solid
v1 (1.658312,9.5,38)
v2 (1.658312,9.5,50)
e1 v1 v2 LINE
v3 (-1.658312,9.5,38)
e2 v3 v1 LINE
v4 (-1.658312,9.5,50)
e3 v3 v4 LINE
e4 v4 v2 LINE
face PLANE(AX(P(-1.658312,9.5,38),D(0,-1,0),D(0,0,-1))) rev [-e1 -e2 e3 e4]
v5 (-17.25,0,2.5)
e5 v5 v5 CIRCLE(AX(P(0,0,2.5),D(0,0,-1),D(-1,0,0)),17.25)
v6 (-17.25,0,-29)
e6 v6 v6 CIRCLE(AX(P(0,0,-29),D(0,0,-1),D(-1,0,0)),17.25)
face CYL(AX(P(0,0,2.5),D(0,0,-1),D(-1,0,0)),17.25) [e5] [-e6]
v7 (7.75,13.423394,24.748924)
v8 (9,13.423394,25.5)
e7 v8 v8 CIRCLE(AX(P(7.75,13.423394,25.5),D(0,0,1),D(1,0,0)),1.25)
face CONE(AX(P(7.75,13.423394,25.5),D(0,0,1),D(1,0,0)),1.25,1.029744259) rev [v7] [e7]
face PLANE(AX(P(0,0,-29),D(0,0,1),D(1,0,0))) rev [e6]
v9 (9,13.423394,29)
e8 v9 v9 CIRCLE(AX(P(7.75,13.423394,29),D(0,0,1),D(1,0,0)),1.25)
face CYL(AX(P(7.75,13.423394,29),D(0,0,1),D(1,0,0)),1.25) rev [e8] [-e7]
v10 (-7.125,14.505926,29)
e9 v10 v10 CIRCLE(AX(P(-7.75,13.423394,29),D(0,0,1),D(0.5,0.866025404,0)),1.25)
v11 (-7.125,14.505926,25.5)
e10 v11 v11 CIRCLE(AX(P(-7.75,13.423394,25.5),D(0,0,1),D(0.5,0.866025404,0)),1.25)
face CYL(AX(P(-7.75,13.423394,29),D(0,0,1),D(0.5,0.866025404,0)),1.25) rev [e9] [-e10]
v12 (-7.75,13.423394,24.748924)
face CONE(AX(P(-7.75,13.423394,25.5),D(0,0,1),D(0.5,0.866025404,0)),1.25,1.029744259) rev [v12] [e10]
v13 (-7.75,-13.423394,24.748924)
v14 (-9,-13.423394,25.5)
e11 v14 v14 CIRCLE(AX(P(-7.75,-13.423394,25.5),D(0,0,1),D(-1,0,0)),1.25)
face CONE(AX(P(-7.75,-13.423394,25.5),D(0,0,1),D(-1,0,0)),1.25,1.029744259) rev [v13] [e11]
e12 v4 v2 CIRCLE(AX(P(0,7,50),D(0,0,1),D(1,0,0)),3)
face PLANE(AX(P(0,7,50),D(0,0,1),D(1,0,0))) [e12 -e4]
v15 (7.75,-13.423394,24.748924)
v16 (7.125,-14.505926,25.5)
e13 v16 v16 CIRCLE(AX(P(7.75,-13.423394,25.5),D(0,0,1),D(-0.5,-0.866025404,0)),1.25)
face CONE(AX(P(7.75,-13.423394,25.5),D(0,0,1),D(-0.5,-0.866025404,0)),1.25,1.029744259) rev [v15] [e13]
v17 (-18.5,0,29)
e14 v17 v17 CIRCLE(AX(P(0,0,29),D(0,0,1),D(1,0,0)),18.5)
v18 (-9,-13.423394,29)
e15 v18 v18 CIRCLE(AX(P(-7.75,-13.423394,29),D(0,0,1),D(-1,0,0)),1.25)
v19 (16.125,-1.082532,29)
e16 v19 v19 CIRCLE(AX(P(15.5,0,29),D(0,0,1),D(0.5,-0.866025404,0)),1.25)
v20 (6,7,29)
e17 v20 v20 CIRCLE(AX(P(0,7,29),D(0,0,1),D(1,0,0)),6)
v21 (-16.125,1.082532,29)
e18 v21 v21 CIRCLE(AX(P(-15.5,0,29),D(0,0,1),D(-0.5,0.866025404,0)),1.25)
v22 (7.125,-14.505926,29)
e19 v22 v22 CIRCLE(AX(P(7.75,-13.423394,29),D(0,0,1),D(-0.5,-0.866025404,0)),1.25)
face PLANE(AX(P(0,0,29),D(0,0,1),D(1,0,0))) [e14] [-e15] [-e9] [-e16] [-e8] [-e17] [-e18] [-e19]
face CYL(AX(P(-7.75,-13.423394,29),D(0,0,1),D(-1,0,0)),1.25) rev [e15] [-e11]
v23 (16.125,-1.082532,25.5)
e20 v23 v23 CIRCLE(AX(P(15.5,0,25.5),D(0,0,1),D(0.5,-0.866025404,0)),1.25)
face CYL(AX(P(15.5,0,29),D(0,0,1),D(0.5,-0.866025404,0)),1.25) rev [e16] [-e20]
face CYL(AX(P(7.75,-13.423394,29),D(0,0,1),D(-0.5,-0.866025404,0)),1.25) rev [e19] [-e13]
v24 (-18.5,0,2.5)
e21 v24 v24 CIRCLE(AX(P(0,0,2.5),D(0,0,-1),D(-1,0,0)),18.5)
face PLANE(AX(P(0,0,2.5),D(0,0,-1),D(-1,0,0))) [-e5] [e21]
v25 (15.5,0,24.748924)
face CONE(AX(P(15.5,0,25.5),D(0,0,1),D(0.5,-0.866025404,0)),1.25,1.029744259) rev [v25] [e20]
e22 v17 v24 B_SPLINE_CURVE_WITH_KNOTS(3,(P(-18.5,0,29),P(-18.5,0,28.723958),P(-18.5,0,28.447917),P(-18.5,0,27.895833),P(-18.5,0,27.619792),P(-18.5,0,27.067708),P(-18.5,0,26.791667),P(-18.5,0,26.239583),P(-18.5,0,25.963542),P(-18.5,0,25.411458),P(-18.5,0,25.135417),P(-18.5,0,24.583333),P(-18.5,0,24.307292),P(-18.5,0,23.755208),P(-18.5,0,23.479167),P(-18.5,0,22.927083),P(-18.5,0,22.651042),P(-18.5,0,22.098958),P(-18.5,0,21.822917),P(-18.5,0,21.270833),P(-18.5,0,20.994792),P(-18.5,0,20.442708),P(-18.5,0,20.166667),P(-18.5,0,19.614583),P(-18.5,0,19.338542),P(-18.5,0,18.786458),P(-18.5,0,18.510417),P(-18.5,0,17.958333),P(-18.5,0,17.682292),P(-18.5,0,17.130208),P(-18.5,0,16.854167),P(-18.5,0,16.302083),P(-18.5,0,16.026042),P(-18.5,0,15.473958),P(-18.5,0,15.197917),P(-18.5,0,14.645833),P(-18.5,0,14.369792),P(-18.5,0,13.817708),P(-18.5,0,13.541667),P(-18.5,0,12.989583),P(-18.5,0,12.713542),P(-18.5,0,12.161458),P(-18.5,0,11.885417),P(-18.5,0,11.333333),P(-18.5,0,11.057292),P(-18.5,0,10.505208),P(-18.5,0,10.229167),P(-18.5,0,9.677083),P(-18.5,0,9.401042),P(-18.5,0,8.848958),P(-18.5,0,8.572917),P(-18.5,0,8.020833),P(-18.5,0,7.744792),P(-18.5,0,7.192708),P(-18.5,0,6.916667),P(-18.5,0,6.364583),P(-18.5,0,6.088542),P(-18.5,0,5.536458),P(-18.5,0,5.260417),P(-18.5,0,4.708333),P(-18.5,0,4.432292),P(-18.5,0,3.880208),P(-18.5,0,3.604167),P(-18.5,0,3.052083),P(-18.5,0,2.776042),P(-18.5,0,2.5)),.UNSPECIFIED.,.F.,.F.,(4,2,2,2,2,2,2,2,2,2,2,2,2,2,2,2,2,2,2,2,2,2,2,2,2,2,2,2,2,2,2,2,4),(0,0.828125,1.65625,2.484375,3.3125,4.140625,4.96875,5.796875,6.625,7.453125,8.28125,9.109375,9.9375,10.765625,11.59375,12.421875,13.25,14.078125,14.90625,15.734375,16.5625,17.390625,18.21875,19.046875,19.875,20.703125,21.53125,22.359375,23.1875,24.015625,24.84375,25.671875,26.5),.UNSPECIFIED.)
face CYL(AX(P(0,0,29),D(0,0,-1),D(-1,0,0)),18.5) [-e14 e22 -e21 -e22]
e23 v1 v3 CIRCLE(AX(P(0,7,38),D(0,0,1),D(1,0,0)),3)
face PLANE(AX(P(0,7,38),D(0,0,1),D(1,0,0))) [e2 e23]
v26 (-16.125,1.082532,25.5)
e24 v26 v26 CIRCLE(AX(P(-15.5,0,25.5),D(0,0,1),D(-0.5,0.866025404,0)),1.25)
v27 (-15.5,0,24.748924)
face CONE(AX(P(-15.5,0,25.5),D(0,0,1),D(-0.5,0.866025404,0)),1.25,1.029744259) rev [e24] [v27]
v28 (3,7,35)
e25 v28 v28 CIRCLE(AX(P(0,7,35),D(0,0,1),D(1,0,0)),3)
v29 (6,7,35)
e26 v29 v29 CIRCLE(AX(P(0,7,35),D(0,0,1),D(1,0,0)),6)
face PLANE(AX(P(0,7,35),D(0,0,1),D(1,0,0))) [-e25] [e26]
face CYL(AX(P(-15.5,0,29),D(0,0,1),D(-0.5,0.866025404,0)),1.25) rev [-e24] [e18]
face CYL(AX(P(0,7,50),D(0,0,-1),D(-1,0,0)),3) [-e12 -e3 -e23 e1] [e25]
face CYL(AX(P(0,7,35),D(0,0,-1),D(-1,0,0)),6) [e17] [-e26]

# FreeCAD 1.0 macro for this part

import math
import FreeCAD as App
import Part
import Sketcher
from FreeCAD import Vector
Q = App.Units.Quantity

doc = App.newDocument("Part")
body = doc.addObject("PartDesign::Body", "Body")

# Sketch on XY plane
sketch1 = body.newObject("Sketcher::SketchObject", "Sketch")
sketch1.AttachmentSupport = (doc.getObject("XY_Plane"), [""])
sketch1.MapMode = "FlatFace"
sketch1.addGeometry(Part.Circle(Vector(0, 0, 0), Vector(0, 0, 1), 18), False)
sketch1.addConstraint(Sketcher.Constraint("Coincident", 0, 3, -1, 1))
sketch1.addConstraint(Sketcher.Constraint("Diameter", 0, Q("37 mm")))
pad1 = body.newObject("PartDesign::Pad", "Pad")
pad1.Profile = sketch1
pad1.Length = 58
pad1.Midplane = True

# Sketch on XY plane
sketch2 = body.newObject("Sketcher::SketchObject", "Sketch001")
sketch2.AttachmentSupport = (doc.getObject("XY_Plane"), [""])
sketch2.MapMode = "FlatFace"
sketch2.AttachmentOffset = App.Placement(Vector(0, 0, 2.5), App.Rotation())
sketch2.addGeometry(Part.Circle(Vector(0, 0, 0), Vector(0, 0, 1), 18), False)
sketch2.addGeometry(Part.Circle(Vector(0, 0, 0), Vector(0, 0, 1), 17), False)
sketch2.addConstraint(Sketcher.Constraint("Coincident", 0, 3, -1, 1))
sketch2.addConstraint(Sketcher.Constraint("Coincident", 1, 3, -1, 1))
sketch2.addConstraint(Sketcher.Constraint("Diameter", 0, Q("37 mm")))
sketch2.addConstraint(Sketcher.Constraint("Diameter", 1, Q("34.5 mm")))
pocket1 = body.newObject("PartDesign::Pocket", "Pocket")
pocket1.Profile = sketch2
pocket1.Length = 31.5

# Sketch on XY plane
sketch3 = body.newObject("Sketcher::SketchObject", "Sketch002")
sketch3.AttachmentSupport = (doc.getObject("XY_Plane"), [""])
sketch3.MapMode = "FlatFace"
sketch3.AttachmentOffset = App.Placement(Vector(0, 0, 29), App.Rotation())
sketch3.addGeometry(Part.Circle(Vector(0, 7, 0), Vector(0, 0, 1), 6), False)
sketch3.addConstraint(Sketcher.Constraint("PointOnObject", 0, 3, -2))
sketch3.addConstraint(Sketcher.Constraint("Diameter", 0, Q("12 mm")))
sketch3.addConstraint(Sketcher.Constraint("DistanceY", -1, 1, 0, 3, Q("7 mm")))
pad2 = body.newObject("PartDesign::Pad", "Pad001")
pad2.Profile = sketch3
pad2.Length = 6

# Sketch on XY plane
sketch4 = body.newObject("Sketcher::SketchObject", "Sketch003")
sketch4.AttachmentSupport = (doc.getObject("XY_Plane"), [""])
sketch4.MapMode = "FlatFace"
sketch4.AttachmentOffset = App.Placement(Vector(0, 0, 35), App.Rotation())
sketch4.addGeometry(Part.Circle(Vector(0, 7, 0), Vector(0, 0, 1), 3), False)
sketch4.addConstraint(Sketcher.Constraint("PointOnObject", 0, 3, -2))
sketch4.addConstraint(Sketcher.Constraint("Diameter", 0, Q("6 mm")))
sketch4.addConstraint(Sketcher.Constraint("DistanceY", -1, 1, 0, 3, Q("7 mm")))
pad3 = body.newObject("PartDesign::Pad", "Pad002")
pad3.Profile = sketch4
pad3.Length = 15

# Sketch on XY plane
sketch5 = body.newObject("Sketcher::SketchObject", "Sketch004")
sketch5.AttachmentSupport = (doc.getObject("XY_Plane"), [""])
sketch5.MapMode = "FlatFace"
sketch5.AttachmentOffset = App.Placement(Vector(0, 0, 38), App.Rotation())
sketch5.addGeometry(Part.LineSegment(Vector(-1.7, 9.5, 0), Vector(1.7, 9.5, 0)), False)
sketch5.addGeometry(Part.ArcOfCircle(Part.Circle(Vector(0, 7, 0), Vector(0, 0, 1), 3), math.radians(56), math.radians(124)), False)
sketch5.addConstraint(Sketcher.Constraint("Coincident", 0, 1, 1, 2))
sketch5.addConstraint(Sketcher.Constraint("Coincident", 1, 1, 0, 2))
sketch5.addConstraint(Sketcher.Constraint("Horizontal", 0))
sketch5.addConstraint(Sketcher.Constraint("PointOnObject", 1, 3, -2))
sketch5.addConstraint(Sketcher.Constraint("Radius", 1, Q("3 mm")))
sketch5.addConstraint(Sketcher.Constraint("DistanceY", -1, 1, 1, 3, Q("7 mm")))
sketch5.addConstraint(Sketcher.Constraint("DistanceY", -1, 1, 0, 1, Q("9.5 mm")))
pocket2 = body.newObject("PartDesign::Pocket", "Pocket001")
pocket2.Profile = sketch5
pocket2.Length = 12
pocket2.Reversed = True

# Sketch on YZ plane
sketch6 = body.newObject("Sketcher::SketchObject", "Sketch005")
sketch6.AttachmentSupport = (doc.getObject("YZ_Plane"), [""])
sketch6.MapMode = "FlatFace"
sketch6.AttachmentOffset = App.Placement(Vector(0, 0, 7.75), App.Rotation())
sketch6.addGeometry(Part.LineSegment(Vector(13.4, 24.7, 0), Vector(13.4, 29, 0)), False)
sketch6.addGeometry(Part.LineSegment(Vector(13.4, 29, 0), Vector(12.2, 29, 0)), False)
sketch6.addGeometry(Part.LineSegment(Vector(12.2, 29, 0), Vector(12.2, 25.5, 0)), False)
sketch6.addGeometry(Part.LineSegment(Vector(12.2, 25.5, 0), Vector(13.4, 24.7, 0)), False)
sketch6.addGeometry(Part.LineSegment(Vector(13.4, 29, 0), Vector(13.4, 24.7, 0)), True)  # axis
sketch6.addConstraint(Sketcher.Constraint("Coincident", 0, 2, 1, 1))
sketch6.addConstraint(Sketcher.Constraint("Coincident", 1, 2, 2, 1))
sketch6.addConstraint(Sketcher.Constraint("Coincident", 2, 2, 3, 1))
sketch6.addConstraint(Sketcher.Constraint("Coincident", 3, 2, 0, 1))
sketch6.addConstraint(Sketcher.Constraint("Vertical", 0))
sketch6.addConstraint(Sketcher.Constraint("Horizontal", 1))
sketch6.addConstraint(Sketcher.Constraint("Vertical", 2))
sketch6.addConstraint(Sketcher.Constraint("Vertical", 4))
sketch6.addConstraint(Sketcher.Constraint("Coincident", 4, 1, 0, 2))
sketch6.addConstraint(Sketcher.Constraint("Equal", 0, 4))
sketch6.addConstraint(Sketcher.Constraint("Angle", 3, Q("-31 deg")))
sketch6.addConstraint(Sketcher.Constraint("DistanceY", 2, 2, 2, 1, Q("3.5 mm")))
sketch6.addConstraint(Sketcher.Constraint("DistanceY", -1, 1, 0, 2, Q("29 mm")))
sketch6.addConstraint(Sketcher.Constraint("DistanceX", 1, 2, 1, 1, Q("1.25 mm")))
sketch6.addConstraint(Sketcher.Constraint("DistanceX", -1, 1, 0, 2, Q("13.423394 mm")))
groove = body.newObject("PartDesign::Groove", "Groove")
groove.Profile = sketch6
groove.ReferenceAxis = (sketch6, ["Axis0"])
groove.Angle = 360
doc.recompute()

polarpattern = body.newObject("PartDesign::PolarPattern", "PolarPattern")
polarpattern.Originals = [groove]
polarpattern.Axis = (doc.getObject("Z_Axis"), [""])
polarpattern.Angle = 360
polarpattern.Occurrences = 6
body.Tip = polarpattern

doc.recompute()
